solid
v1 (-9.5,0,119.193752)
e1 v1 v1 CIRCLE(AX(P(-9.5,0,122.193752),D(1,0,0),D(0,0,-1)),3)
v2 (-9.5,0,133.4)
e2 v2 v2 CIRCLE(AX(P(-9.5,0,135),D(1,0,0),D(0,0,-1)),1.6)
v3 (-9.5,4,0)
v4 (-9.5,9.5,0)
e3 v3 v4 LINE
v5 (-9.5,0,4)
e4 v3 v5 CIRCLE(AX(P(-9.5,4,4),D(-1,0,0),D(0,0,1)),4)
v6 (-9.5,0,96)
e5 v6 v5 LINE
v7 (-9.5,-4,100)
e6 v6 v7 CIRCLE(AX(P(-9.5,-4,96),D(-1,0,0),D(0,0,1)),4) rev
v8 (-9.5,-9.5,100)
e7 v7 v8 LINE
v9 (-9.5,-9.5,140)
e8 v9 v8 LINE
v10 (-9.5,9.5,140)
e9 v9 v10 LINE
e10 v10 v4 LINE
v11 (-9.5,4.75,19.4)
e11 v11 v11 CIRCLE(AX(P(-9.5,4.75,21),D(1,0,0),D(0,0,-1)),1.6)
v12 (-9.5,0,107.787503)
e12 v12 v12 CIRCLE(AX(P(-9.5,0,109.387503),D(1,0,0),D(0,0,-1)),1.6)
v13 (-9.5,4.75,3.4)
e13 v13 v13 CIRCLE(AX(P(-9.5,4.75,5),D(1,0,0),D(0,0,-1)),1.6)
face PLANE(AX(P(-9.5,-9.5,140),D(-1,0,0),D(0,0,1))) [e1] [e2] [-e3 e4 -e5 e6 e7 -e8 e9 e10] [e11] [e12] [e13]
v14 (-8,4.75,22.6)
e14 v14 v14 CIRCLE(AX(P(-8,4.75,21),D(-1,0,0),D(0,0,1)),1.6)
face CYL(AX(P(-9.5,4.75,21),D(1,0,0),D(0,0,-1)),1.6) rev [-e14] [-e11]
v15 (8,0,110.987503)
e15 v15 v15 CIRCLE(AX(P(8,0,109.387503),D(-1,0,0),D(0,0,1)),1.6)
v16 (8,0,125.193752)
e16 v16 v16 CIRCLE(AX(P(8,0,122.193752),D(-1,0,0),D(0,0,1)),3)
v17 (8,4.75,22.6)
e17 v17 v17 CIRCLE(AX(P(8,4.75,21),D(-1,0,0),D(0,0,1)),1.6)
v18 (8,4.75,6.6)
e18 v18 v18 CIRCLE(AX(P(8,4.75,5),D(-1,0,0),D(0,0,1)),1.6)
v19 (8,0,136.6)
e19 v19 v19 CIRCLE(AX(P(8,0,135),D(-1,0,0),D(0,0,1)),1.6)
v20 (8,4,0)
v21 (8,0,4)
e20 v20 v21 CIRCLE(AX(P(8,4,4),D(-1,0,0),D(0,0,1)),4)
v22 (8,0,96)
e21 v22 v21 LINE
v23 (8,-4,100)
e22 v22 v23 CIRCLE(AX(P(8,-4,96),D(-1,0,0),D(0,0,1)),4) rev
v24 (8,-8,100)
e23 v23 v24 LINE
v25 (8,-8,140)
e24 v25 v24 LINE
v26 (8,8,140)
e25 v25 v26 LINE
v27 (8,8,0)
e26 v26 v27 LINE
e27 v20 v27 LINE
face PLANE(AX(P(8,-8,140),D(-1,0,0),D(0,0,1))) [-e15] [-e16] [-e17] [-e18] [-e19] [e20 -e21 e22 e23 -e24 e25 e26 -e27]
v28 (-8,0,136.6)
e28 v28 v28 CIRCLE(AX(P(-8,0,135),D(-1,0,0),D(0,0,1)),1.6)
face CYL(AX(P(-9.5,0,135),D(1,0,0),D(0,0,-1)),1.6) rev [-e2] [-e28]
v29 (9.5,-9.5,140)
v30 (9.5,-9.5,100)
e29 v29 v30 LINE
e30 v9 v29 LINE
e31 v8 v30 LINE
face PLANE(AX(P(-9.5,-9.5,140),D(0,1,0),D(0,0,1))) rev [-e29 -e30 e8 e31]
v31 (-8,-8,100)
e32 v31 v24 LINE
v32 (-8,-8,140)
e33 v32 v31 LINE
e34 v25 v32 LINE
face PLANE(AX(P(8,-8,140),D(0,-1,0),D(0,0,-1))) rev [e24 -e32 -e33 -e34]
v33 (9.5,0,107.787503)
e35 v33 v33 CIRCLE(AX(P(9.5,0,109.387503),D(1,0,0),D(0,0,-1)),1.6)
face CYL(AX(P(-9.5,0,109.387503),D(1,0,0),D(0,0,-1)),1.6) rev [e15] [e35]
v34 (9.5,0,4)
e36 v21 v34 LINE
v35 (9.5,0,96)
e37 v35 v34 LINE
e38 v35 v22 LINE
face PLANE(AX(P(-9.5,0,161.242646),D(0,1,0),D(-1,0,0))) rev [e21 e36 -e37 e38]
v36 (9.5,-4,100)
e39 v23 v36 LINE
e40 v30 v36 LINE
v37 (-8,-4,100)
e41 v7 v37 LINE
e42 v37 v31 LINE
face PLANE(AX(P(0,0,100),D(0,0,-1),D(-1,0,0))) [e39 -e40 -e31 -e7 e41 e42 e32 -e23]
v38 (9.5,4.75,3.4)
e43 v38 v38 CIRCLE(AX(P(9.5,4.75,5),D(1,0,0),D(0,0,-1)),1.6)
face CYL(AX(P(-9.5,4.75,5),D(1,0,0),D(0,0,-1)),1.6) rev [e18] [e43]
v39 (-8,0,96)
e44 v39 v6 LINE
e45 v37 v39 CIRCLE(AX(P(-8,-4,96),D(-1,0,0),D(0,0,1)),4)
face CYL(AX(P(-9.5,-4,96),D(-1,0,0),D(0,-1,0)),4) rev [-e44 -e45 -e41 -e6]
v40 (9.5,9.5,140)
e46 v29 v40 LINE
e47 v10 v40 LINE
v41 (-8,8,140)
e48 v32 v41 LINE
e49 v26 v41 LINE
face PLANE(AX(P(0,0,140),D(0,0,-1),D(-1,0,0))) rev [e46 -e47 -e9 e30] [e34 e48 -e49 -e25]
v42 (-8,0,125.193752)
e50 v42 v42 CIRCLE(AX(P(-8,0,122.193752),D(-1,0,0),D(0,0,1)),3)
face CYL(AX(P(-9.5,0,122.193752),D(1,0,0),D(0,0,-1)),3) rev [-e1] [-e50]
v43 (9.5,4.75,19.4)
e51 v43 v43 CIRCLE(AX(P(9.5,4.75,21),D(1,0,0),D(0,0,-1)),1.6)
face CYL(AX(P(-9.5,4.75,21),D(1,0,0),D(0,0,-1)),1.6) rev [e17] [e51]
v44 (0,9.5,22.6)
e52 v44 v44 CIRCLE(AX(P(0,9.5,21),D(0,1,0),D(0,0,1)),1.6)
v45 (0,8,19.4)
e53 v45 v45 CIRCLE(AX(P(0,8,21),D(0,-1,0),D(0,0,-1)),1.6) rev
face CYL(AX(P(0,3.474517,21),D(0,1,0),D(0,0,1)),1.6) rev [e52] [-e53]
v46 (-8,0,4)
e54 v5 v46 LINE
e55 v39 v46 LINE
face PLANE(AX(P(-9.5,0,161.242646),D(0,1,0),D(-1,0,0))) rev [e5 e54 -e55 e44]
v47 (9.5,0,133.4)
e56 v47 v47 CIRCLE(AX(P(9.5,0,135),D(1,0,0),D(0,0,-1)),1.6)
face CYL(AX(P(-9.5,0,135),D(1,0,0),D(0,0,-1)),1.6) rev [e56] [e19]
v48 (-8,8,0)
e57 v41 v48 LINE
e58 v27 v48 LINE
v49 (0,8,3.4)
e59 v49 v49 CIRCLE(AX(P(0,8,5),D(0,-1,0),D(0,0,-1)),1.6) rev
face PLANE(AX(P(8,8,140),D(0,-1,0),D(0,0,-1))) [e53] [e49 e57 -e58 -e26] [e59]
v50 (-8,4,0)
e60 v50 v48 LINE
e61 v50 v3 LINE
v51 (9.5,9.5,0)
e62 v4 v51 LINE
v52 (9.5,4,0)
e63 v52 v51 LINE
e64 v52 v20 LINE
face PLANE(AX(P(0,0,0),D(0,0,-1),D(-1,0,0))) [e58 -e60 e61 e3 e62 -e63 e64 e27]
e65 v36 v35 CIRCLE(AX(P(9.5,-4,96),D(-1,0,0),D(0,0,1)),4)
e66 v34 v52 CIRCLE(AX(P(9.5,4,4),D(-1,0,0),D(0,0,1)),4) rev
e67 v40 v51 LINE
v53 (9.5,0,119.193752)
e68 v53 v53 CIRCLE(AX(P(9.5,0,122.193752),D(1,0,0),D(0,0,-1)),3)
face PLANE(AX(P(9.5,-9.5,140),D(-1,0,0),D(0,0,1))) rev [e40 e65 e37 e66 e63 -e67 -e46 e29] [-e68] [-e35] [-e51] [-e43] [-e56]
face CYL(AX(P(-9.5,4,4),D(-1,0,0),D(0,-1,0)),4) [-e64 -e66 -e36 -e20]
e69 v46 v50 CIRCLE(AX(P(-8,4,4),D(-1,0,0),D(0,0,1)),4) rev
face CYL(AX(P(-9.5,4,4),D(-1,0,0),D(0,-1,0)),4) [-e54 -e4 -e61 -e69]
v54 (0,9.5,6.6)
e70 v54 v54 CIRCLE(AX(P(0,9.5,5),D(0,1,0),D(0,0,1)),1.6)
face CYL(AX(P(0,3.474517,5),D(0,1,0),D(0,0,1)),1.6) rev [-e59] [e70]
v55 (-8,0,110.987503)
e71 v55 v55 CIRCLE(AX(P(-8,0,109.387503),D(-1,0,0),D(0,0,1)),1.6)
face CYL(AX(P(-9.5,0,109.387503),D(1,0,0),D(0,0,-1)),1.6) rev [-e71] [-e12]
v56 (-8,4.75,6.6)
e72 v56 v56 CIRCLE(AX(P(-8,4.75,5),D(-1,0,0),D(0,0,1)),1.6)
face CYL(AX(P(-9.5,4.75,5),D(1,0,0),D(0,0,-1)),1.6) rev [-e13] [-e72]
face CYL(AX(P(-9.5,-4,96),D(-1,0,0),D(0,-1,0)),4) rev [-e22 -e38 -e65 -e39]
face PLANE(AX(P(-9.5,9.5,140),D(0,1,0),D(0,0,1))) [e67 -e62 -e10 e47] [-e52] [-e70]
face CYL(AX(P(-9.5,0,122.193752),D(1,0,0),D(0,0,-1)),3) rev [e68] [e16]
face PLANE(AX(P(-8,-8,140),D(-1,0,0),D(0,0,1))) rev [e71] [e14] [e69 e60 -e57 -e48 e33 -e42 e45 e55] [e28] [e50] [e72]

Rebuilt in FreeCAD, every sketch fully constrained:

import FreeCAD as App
import Part
import Sketcher

V = App.Vector


def edges_at(feature, points):
    """Names of the edges that pass closest to the given points."""
    edges = feature.Shape.Edges
    near = lambda p: min(range(len(edges)), key=lambda i: edges[i].distToShape(Part.Vertex(*p))[0])
    return sorted({f"Edge{near(p) + 1}" for p in points})

doc = App.newDocument("Part")
body = doc.addObject("PartDesign::Body", "Body")

# Sketch on XY plane
sketch1 = doc.addObject("Sketcher::SketchObject", "Sketch")
body.addObject(sketch1)
sketch1.AttachmentSupport = (doc.XY_Plane, [""])
sketch1.MapMode = "FlatFace"
sketch1.addGeometry([
    Part.LineSegment(V(-10, 10, 0), V(-10, -10, 0)),  # 0
    Part.LineSegment(V(-10, -10, 0), V(10, -10, 0)),  # 1
    Part.LineSegment(V(10, -10, 0), V(10, 10, 0)),  # 2
    Part.LineSegment(V(10, 10, 0), V(-10, 10, 0)),  # 3
    Part.LineSegment(V(8, -8, 0), V(-8, -8, 0)),  # 4
    Part.LineSegment(V(-8, -8, 0), V(-8, 8, 0)),  # 5
    Part.LineSegment(V(-8, 8, 0), V(8, 8, 0)),  # 6
    Part.LineSegment(V(8, 8, 0), V(8, -8, 0)),  # 7
], False)
sketch1.addConstraint([
    Sketcher.Constraint("Coincident", 0, 2, 1, 1),
    Sketcher.Constraint("Coincident", 1, 2, 2, 1),
    Sketcher.Constraint("Coincident", 2, 2, 3, 1),
    Sketcher.Constraint("Coincident", 3, 2, 0, 1),
    Sketcher.Constraint("Coincident", 4, 2, 5, 1),
    Sketcher.Constraint("Coincident", 5, 2, 6, 1),
    Sketcher.Constraint("Coincident", 6, 2, 7, 1),
    Sketcher.Constraint("Coincident", 7, 2, 4, 1),
    Sketcher.Constraint("Vertical", 0),
    Sketcher.Constraint("Horizontal", 1),
    Sketcher.Constraint("Vertical", 2),
    Sketcher.Constraint("Horizontal", 3),
    Sketcher.Constraint("Horizontal", 4),
    Sketcher.Constraint("Vertical", 5),
    Sketcher.Constraint("Horizontal", 6),
    Sketcher.Constraint("Vertical", 7),
    Sketcher.Constraint("Symmetric", 0, 2, 2, 2, -1, 1),
    Sketcher.Constraint("Symmetric", 4, 2, 6, 2, -1, 1),
    Sketcher.Constraint("Equal", 3, 0),
    Sketcher.Constraint("Equal", 6, 5),
    Sketcher.Constraint("DistanceX", 1, 1, 1, 2, 19.0),
    Sketcher.Constraint("DistanceX", 4, 2, 4, 1, 16.0),
])
pad1 = doc.addObject("PartDesign::Pad", "Pad")
body.addObject(pad1)
pad1.Profile = sketch1
pad1.Length = 140

# Sketch on YZ plane
sketch2 = doc.addObject("Sketcher::SketchObject", "Sketch001")
body.addObject(sketch2)
sketch2.AttachmentSupport = (doc.YZ_Plane, [""])
sketch2.MapMode = "FlatFace"
sketch2.AttachmentOffset = App.Placement(V(0, 0, 9.5), App.Rotation())
sketch2.addGeometry([
    Part.Circle(V(0, 109.4, 0), V(0, 0, 1), 1.6),  # 0
    Part.Circle(V(0, 135, 0), V(0, 0, 1), 1.6),  # 1
    Part.Circle(V(0, 122.2, 0), V(0, 0, 1), 3),  # 2
    Part.Circle(V(4.8, 5, 0), V(0, 0, 1), 1.6),  # 3
    Part.Circle(V(4.8, 21, 0), V(0, 0, 1), 1.6),  # 4
], False)
sketch2.addConstraint([
    Sketcher.Constraint("Equal", 0, 1),
    Sketcher.Constraint("Equal", 1, 3),
    Sketcher.Constraint("Equal", 3, 4),
    Sketcher.Constraint("PointOnObject", 0, 3, -2),
    Sketcher.Constraint("PointOnObject", 1, 3, -2),
    Sketcher.Constraint("PointOnObject", 2, 3, -2),
    Sketcher.Constraint("Vertical", 3, 3, 4, 3),
    Sketcher.Constraint("Diameter", 2, 6.0),
    Sketcher.Constraint("Diameter", 0, 3.2),
    Sketcher.Constraint("DistanceY", -1, 1, 1, 3, 135.0),
    Sketcher.Constraint("DistanceY", -1, 1, 3, 3, 5.0),
    Sketcher.Constraint("DistanceY", -1, 1, 4, 3, 21.0),
    Sketcher.Constraint("DistanceX", -1, 1, 3, 3, 4.75),
    Sketcher.Constraint("DistanceY", -1, 1, 2, 3, 122.193752),
    Sketcher.Constraint("DistanceY", 0, 3, 2, 3, 12.806248),
])
pocket1 = doc.addObject("PartDesign::Pocket", "Pocket")
body.addObject(pocket1)
pocket1.Profile = sketch2
pocket1.Type = "ThroughAll"

# Sketch on XZ plane
sketch3 = doc.addObject("Sketcher::SketchObject", "Sketch002")
body.addObject(sketch3)
sketch3.AttachmentSupport = (doc.XZ_Plane, [""])
sketch3.MapMode = "FlatFace"
sketch3.AttachmentOffset = App.Placement(V(0, 0, -9.5), App.Rotation())
sketch3.addGeometry([
    Part.Circle(V(0, 21, 0), V(0, 0, 1), 1.6),
    Part.Circle(V(0, 5, 0), V(0, 0, 1), 1.6),
], False)
sketch3.addConstraint([
    Sketcher.Constraint("Equal", 0, 1),
    Sketcher.Constraint("PointOnObject", 0, 3, -2),
    Sketcher.Constraint("PointOnObject", 1, 3, -2),
    Sketcher.Constraint("Diameter", 0, 3.2),
    Sketcher.Constraint("DistanceY", -1, 1, 0, 3, 21.0),
    Sketcher.Constraint("DistanceY", -1, 1, 1, 3, 5.0),
])
pocket2 = doc.addObject("PartDesign::Pocket", "Pocket001")
body.addObject(pocket2)
pocket2.Profile = sketch3
pocket2.Length = 1.5
pocket2.Reversed = True

# Sketch on XY plane
sketch4 = doc.addObject("Sketcher::SketchObject", "Sketch003")
body.addObject(sketch4)
sketch4.AttachmentSupport = (doc.XY_Plane, [""])
sketch4.MapMode = "FlatFace"
sketch4.addGeometry([
    Part.LineSegment(V(10, 0, 0), V(10, -10, 0)),
    Part.LineSegment(V(10, -10, 0), V(-10, -10, 0)),
    Part.LineSegment(V(-10, -10, 0), V(-10, 0, 0)),
    Part.LineSegment(V(-10, 0, 0), V(10, 0, 0)),
], False)
sketch4.addConstraint([
    Sketcher.Constraint("Coincident", 0, 2, 1, 1),
    Sketcher.Constraint("Coincident", 1, 2, 2, 1),
    Sketcher.Constraint("Coincident", 2, 2, 3, 1),
    Sketcher.Constraint("Coincident", 3, 2, 0, 1),
    Sketcher.Constraint("Vertical", 0),
    Sketcher.Constraint("Horizontal", 1),
    Sketcher.Constraint("Vertical", 2),
    Sketcher.Constraint("Horizontal", 3),
    Sketcher.Constraint("Symmetric", 2, 2, 3, 2, -1, 1),
    Sketcher.Constraint("DistanceX", 1, 2, 1, 1, 19.0),
    Sketcher.Constraint("DistanceY", 0, 2, 0, 1, 9.5),
])
pocket3 = doc.addObject("PartDesign::Pocket", "Pocket002")
body.addObject(pocket3)
pocket3.Profile = sketch4
pocket3.Length = 100
pocket3.Reversed = True
doc.recompute()

fillet = doc.addObject("PartDesign::Fillet", "Fillet")
body.addObject(fillet)
fillet.Base = (pocket3, edges_at(pocket3, [
    (-8.75, 0, 0),
    (8.75, 0, 0),
    (-8.75, 0, 100),
    (8.75, 0, 100),
]))
fillet.Radius = 4

doc.recompute()
